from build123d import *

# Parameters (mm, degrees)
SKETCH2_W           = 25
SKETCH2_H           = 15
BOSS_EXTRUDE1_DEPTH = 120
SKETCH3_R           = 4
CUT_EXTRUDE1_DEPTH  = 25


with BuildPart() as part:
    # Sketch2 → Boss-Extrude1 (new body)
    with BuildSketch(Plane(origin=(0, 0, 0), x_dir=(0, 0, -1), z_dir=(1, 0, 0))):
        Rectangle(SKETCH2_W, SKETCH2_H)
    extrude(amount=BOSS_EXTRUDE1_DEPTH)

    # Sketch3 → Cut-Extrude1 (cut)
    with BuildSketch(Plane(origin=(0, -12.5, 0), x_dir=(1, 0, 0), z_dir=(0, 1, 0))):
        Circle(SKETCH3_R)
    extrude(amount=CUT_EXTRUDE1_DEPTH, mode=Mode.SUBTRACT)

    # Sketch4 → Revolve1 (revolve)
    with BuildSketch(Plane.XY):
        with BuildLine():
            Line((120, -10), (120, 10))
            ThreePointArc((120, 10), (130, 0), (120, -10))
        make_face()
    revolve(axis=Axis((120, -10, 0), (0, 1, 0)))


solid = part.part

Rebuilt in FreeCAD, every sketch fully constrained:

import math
import FreeCAD as App
import Part
import Sketcher
from FreeCAD import Vector

doc = App.newDocument("Part")
body = doc.addObject("PartDesign::Body", "Body")

# Sketch on YZ plane
sketch1 = body.newObject("Sketcher::SketchObject", "Sketch")
sketch1.AttachmentSupport = (doc.getObject("YZ_Plane"), [""])
sketch1.MapMode = "FlatFace"
sketch1.addGeometry([
    Part.LineSegment(Vector(7.5, 12.5, 0), Vector(-7.5, 12.5, 0)),
    Part.LineSegment(Vector(-7.5, 12.5, 0), Vector(-7.5, -12.5, 0)),
    Part.LineSegment(Vector(-7.5, -12.5, 0), Vector(7.5, -12.5, 0)),
    Part.LineSegment(Vector(7.5, -12.5, 0), Vector(7.5, 12.5, 0)),
], False)
sketch1.addConstraint([
    Sketcher.Constraint("Coincident", 0, 2, 1, 1),
    Sketcher.Constraint("Coincident", 1, 2, 2, 1),
    Sketcher.Constraint("Coincident", 2, 2, 3, 1),
    Sketcher.Constraint("Coincident", 3, 2, 0, 1),
    Sketcher.Constraint("Horizontal", 0),
    Sketcher.Constraint("Vertical", 1),
    Sketcher.Constraint("Horizontal", 2),
    Sketcher.Constraint("Vertical", 3),
    Sketcher.Constraint("Symmetric", 0, 2, 2, 2, -1, 1),
    Sketcher.Constraint("DistanceX", 0, 2, 0, 1, 15.0),
    Sketcher.Constraint("DistanceY", 1, 2, 1, 1, 25.0),
])
pad1 = body.newObject("PartDesign::Pad", "Pad")
pad1.Profile = sketch1
pad1.Length = 120

# Sketch on XZ plane
sketch2 = body.newObject("Sketcher::SketchObject", "Sketch001")
sketch2.AttachmentSupport = (doc.getObject("XZ_Plane"), [""])
sketch2.MapMode = "FlatFace"
sketch2.AttachmentOffset = App.Placement(Vector(0, 0, 12.5), App.Rotation())
sketch2.addGeometry(Part.Circle(Vector(0, 0, 0), Vector(0, 0, 1), 4), False)
sketch2.addConstraint([
    Sketcher.Constraint("Coincident", 0, 3, -1, 1),
    Sketcher.Constraint("Diameter", 0, 8.0),
])
pocket1 = body.newObject("PartDesign::Pocket", "Pocket")
pocket1.Profile = sketch2
pocket1.Length = 25

# Sketch on XY plane
sketch3 = body.newObject("Sketcher::SketchObject", "Sketch002")
sketch3.AttachmentSupport = (doc.getObject("XY_Plane"), [""])
sketch3.MapMode = "FlatFace"
sketch3.addGeometry([
    Part.LineSegment(Vector(120, 10, 0), Vector(120, -10, 0)),
    Part.ArcOfCircle(Part.Circle(Vector(120, 0, 0), Vector(0, 0, 1), 10), math.radians(-90), math.radians(90)),
], False)
sketch3.addGeometry(Part.LineSegment(Vector(120, -10, 0), Vector(120, 10, 0)), True)  # axis
sketch3.addConstraint([
    Sketcher.Constraint("Coincident", 0, 1, 1, 2),
    Sketcher.Constraint("Coincident", 1, 1, 0, 2),
    Sketcher.Constraint("Vertical", 0),
    Sketcher.Constraint("Vertical", 2),
    Sketcher.Constraint("Coincident", 2, 1, 1, 1),
    Sketcher.Constraint("PointOnObject", 1, 3, -1),
    Sketcher.Constraint("Vertical", 1, 3, 0, 1),
    Sketcher.Constraint("Equal", 0, 2),
    Sketcher.Constraint("Radius", 1, 10.0),
    Sketcher.Constraint("DistanceX", -1, 1, 1, 3, 120.0),
])
revolution = body.newObject("PartDesign::Revolution", "Revolution")
revolution.Profile = sketch3
revolution.ReferenceAxis = (sketch3, ["Axis0"])
revolution.Angle = 360

doc.recompute()
